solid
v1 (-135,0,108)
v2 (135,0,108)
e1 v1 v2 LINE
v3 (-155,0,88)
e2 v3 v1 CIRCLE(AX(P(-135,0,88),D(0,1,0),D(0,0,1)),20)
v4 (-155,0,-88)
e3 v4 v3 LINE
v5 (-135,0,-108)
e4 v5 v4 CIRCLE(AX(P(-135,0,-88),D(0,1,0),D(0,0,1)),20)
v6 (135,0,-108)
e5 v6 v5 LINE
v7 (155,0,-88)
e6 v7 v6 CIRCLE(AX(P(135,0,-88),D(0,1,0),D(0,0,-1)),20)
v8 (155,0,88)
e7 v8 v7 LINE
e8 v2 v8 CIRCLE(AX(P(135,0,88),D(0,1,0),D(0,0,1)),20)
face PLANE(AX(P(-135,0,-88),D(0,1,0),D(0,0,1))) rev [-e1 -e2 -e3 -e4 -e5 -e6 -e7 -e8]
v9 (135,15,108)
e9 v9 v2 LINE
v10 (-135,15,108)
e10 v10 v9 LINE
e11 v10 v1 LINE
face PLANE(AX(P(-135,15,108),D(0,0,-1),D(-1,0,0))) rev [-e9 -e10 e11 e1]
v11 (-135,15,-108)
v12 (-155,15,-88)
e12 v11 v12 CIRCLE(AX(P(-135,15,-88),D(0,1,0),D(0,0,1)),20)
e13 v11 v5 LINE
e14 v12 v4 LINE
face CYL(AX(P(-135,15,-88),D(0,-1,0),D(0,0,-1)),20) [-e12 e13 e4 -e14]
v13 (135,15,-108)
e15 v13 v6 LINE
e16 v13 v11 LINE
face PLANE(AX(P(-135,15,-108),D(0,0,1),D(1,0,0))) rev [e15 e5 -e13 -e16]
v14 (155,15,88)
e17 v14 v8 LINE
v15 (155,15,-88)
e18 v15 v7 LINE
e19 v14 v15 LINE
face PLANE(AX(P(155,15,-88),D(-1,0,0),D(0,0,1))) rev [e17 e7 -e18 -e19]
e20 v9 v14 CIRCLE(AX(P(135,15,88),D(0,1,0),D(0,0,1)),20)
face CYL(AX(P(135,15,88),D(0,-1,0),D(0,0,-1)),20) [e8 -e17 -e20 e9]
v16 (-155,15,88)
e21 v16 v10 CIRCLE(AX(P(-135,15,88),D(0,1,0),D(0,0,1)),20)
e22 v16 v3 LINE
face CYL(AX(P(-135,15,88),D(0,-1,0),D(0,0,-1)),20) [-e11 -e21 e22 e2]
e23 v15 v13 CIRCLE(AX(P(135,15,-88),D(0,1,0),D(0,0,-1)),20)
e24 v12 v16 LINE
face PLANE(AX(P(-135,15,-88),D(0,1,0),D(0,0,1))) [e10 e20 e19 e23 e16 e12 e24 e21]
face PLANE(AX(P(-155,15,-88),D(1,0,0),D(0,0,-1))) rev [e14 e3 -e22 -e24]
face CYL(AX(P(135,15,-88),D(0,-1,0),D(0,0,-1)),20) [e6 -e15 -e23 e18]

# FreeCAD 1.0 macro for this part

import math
import FreeCAD as App
import Part
import Sketcher

doc = App.newDocument("Part")
body = doc.addObject("PartDesign::Body", "Body")

# Sketch on XZ plane
sketch1 = body.newObject("Sketcher::SketchObject", "Sketch")
sketch1.AttachmentSupport = (doc.getObject("XZ_Plane"), [""])
sketch1.MapMode = "FlatFace"
sketch1.addGeometry(Part.LineSegment(App.Vector(135, -108, 0), App.Vector(-135, -108, 0)), False)
sketch1.addGeometry(Part.ArcOfCircle(Part.Circle(App.Vector(-135, -88, 0), App.Vector(0, 0, 1), 20), math.radians(180), math.radians(270)), False)
sketch1.addGeometry(Part.LineSegment(App.Vector(-155, -88, 0), App.Vector(-155, 88, 0)), False)
sketch1.addGeometry(Part.ArcOfCircle(Part.Circle(App.Vector(-135, 88, 0), App.Vector(0, 0, 1), 20), math.radians(90), math.radians(180)), False)
sketch1.addGeometry(Part.LineSegment(App.Vector(-135, 108, 0), App.Vector(135, 108, 0)), False)
sketch1.addGeometry(Part.ArcOfCircle(Part.Circle(App.Vector(135, 88, 0), App.Vector(0, 0, 1), 20), math.radians(0), math.radians(90)), False)
sketch1.addGeometry(Part.LineSegment(App.Vector(155, 88, 0), App.Vector(155, -88, 0)), False)
sketch1.addGeometry(Part.ArcOfCircle(Part.Circle(App.Vector(135, -88, 0), App.Vector(0, 0, 1), 20), math.radians(-90), math.radians(0)), False)
sketch1.addConstraint(Sketcher.Constraint("Tangent", 0, 2, 1, 2))
sketch1.addConstraint(Sketcher.Constraint("Tangent", 1, 1, 2, 1))
sketch1.addConstraint(Sketcher.Constraint("Tangent", 2, 2, 3, 2))
sketch1.addConstraint(Sketcher.Constraint("Tangent", 3, 1, 4, 1))
sketch1.addConstraint(Sketcher.Constraint("Tangent", 4, 2, 5, 2))
sketch1.addConstraint(Sketcher.Constraint("Tangent", 5, 1, 6, 1))
sketch1.addConstraint(Sketcher.Constraint("Tangent", 6, 2, 7, 2))
sketch1.addConstraint(Sketcher.Constraint("Tangent", 7, 1, 0, 1))
sketch1.addConstraint(Sketcher.Constraint("Horizontal", 0))
sketch1.addConstraint(Sketcher.Constraint("Vertical", 2))
sketch1.addConstraint(Sketcher.Constraint("Horizontal", 4))
sketch1.addConstraint(Sketcher.Constraint("Vertical", 6))
sketch1.addConstraint(Sketcher.Constraint("Equal", 1, 3))
sketch1.addConstraint(Sketcher.Constraint("Equal", 3, 5))
sketch1.addConstraint(Sketcher.Constraint("Equal", 5, 7))
sketch1.addConstraint(Sketcher.Constraint("Symmetric", 1, 3, 5, 3, -1, 1))
sketch1.addConstraint(Sketcher.Constraint("Radius", 1, 20.0))
sketch1.addConstraint(Sketcher.Constraint("DistanceX", 0, 2, 0, 1, 270.0))
sketch1.addConstraint(Sketcher.Constraint("DistanceY", 2, 1, 2, 2, 176.0))
pad1 = body.newObject("PartDesign::Pad", "Pad")
pad1.Profile = sketch1
pad1.Length = 15
pad1.Reversed = True

doc.recompute()
